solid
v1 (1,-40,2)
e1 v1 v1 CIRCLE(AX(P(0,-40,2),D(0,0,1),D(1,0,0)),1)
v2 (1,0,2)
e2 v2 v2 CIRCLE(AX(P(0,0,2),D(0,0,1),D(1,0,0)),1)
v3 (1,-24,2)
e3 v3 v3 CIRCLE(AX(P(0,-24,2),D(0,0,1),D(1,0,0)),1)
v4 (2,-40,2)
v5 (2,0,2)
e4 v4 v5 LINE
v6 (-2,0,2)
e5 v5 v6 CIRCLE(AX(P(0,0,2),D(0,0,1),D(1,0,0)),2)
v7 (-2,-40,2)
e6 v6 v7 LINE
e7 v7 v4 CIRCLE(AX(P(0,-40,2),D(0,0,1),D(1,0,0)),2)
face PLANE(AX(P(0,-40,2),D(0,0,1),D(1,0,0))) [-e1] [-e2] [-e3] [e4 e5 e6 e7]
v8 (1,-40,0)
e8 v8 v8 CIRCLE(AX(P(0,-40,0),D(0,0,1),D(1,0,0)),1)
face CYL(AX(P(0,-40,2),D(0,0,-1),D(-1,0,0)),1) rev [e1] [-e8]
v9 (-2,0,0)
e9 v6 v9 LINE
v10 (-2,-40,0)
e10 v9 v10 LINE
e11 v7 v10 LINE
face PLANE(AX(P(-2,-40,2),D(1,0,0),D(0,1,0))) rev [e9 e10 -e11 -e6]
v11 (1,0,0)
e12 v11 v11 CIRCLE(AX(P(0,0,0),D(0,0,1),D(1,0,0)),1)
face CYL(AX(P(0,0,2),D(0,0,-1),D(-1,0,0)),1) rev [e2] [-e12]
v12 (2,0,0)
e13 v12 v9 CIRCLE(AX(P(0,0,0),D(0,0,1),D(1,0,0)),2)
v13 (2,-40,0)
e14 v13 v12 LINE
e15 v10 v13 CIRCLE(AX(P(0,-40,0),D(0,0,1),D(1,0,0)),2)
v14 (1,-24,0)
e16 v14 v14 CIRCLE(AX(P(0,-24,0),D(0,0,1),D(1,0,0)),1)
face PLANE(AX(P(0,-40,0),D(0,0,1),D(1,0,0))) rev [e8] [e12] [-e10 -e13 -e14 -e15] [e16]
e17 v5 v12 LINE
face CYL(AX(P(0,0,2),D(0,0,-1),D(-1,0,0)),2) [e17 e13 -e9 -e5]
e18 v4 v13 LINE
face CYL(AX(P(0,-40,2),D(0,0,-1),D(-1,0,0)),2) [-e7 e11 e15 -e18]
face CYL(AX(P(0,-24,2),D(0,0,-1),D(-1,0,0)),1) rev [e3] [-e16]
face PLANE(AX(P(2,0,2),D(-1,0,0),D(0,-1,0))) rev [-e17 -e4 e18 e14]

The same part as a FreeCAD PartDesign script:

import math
import FreeCAD as App
import Part
import Sketcher

V = App.Vector

doc = App.newDocument("Part")
body = doc.addObject("PartDesign::Body", "Body")

# Sketch on XY plane
sketch1 = body.newObject("Sketcher::SketchObject", "Sketch")
sketch1.AttachmentSupport = (doc.getObject("XY_Plane"), [""])
sketch1.MapMode = "FlatFace"
sketch1.addGeometry([
    Part.LineSegment(V(2, -40, 0), V(2, 0, 0)),  # 0
    Part.ArcOfCircle(Part.Circle(V(0, 0, 0), V(0, 0, 1), 2), math.radians(0), math.radians(180)),  # 1
    Part.LineSegment(V(-2, 0, 0), V(-2, -40, 0)),  # 2
    Part.ArcOfCircle(Part.Circle(V(0, -40, 0), V(0, 0, 1), 2), math.radians(180), math.radians(360)),  # 3
    Part.Circle(V(0, -40, 0), V(0, 0, 1), 1),  # 4
    Part.Circle(V(0, -24, 0), V(0, 0, 1), 1),  # 5
    Part.Circle(V(0, 0, 0), V(0, 0, 1), 1),  # 6
], False)
sketch1.addConstraint([
    Sketcher.Constraint("Tangent", 0, 2, 1, 1),
    Sketcher.Constraint("Tangent", 1, 2, 2, 1),
    Sketcher.Constraint("Tangent", 2, 2, 3, 1),
    Sketcher.Constraint("Tangent", 3, 2, 0, 1),
    Sketcher.Constraint("Vertical", 0),
    Sketcher.Constraint("Vertical", 2),
    Sketcher.Constraint("Coincident", 1, 3, -1, 1),
    Sketcher.Constraint("Coincident", 6, 3, -1, 1),
    Sketcher.Constraint("Coincident", 4, 3, 3, 3),
    Sketcher.Constraint("Equal", 4, 5),
    Sketcher.Constraint("Equal", 5, 6),
    Sketcher.Constraint("PointOnObject", 5, 3, -2),
    Sketcher.Constraint("Diameter", 4, 2.0),
    Sketcher.Constraint("Radius", 1, 2.0),
    Sketcher.Constraint("DistanceY", 0, 1, 0, 2, 40.0),
    Sketcher.Constraint("DistanceY", 5, 3, -1, 1, 24.0),
])
pad1 = body.newObject("PartDesign::Pad", "Pad")
pad1.Profile = sketch1
pad1.Length = 2

doc.recompute()
